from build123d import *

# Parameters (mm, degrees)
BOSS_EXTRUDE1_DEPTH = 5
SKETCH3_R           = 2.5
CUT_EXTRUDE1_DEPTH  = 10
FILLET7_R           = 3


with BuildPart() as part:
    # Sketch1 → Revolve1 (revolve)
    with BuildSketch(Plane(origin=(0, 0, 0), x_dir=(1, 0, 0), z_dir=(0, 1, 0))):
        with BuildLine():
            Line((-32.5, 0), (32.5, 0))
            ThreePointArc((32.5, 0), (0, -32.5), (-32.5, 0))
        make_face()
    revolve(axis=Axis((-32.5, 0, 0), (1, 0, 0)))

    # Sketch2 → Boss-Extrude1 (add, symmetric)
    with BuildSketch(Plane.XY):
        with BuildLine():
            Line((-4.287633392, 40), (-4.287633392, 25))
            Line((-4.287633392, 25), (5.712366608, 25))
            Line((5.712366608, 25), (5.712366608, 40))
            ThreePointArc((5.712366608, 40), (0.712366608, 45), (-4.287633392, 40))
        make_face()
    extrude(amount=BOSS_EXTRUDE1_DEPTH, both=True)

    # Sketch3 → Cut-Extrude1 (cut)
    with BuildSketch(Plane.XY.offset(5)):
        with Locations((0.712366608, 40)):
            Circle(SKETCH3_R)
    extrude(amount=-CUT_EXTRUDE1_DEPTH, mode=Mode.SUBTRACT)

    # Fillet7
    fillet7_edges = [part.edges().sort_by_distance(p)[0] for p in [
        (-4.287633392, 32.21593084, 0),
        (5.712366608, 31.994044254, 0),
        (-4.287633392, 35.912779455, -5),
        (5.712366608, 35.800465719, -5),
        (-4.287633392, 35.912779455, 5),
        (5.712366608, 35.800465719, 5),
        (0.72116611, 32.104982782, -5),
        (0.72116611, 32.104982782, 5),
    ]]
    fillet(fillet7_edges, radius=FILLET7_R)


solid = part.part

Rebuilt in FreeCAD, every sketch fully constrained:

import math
import FreeCAD as App
import Part
import Sketcher
Q = App.Units.Quantity


def edges_at(feature, points):
    """Names of the edges that pass closest to the given points."""
    edges = feature.Shape.Edges
    near = lambda p: min(range(len(edges)), key=lambda i: edges[i].distToShape(Part.Vertex(*p))[0])
    return sorted({f"Edge{near(p) + 1}" for p in points})

doc = App.newDocument("Part")
params = doc.addObject("Spreadsheet::Sheet", "Params")
for row, (alias, value) in enumerate([
    ("sketch1_radius", "32.5 mm"),
    ("revolution_angle", "360 deg"),
    ("sketch2_radius", "5 mm"),
    ("sketch2_height", "15 mm"),
    ("pad1_length", "10 mm"),
    ("sketch3_diameter", "5 mm"),
    ("pocket1_length", "10 mm"),
    ("fillet_radius", "3 mm"),
], start=1):
    params.set(f"A{row}", alias)
    params.set(f"B{row}", "=" + value)
    params.setAlias(f"B{row}", alias)

body = doc.addObject("PartDesign::Body", "Body")

# Sketch on XZ plane
sketch1 = doc.addObject("Sketcher::SketchObject", "Sketch")
body.addObject(sketch1)
sketch1.AttachmentSupport = (doc.XZ_Plane, [""])
sketch1.MapMode = "FlatFace"
sketch1.addGeometry([
    Part.LineSegment(App.Vector(32, 0, 0), App.Vector(-32, 0, 0)),
    Part.ArcOfCircle(Part.Circle(App.Vector(0, 0, 0), App.Vector(0, 0, 1), 32), math.radians(0), math.radians(180)),
], False)
sketch1.addConstraint([
    Sketcher.Constraint("Coincident", 0, 1, 1, 1),
    Sketcher.Constraint("Coincident", 1, 2, 0, 2),
    Sketcher.Constraint("Horizontal", 0),
    Sketcher.Constraint("Coincident", 1, 3, -1, 1),
    Sketcher.Constraint("PointOnObject", 0, 1, -1),
    Sketcher.Constraint("Radius", 1, Q("32.5 mm")),
])
sketch1.setExpression("Constraints[5]", "Params.sketch1_radius")
revolution = doc.addObject("PartDesign::Revolution", "Revolution")
body.addObject(revolution)
revolution.Profile = sketch1
revolution.ReferenceAxis = (sketch1, ["H_Axis"])
revolution.setExpression("Angle", "Params.revolution_angle")

# Sketch on XY plane
sketch2 = doc.addObject("Sketcher::SketchObject", "Sketch001")
body.addObject(sketch2)
sketch2.AttachmentSupport = (doc.XY_Plane, [""])
sketch2.MapMode = "FlatFace"
sketch2.addGeometry([
    Part.LineSegment(App.Vector(-4, 40, 0), App.Vector(-4, 25, 0)),
    Part.LineSegment(App.Vector(-4, 25, 0), App.Vector(6, 25, 0)),
    Part.LineSegment(App.Vector(6, 25, 0), App.Vector(6, 40, 0)),
    Part.ArcOfCircle(Part.Circle(App.Vector(1, 40, 0), App.Vector(0, 0, 1), 5), math.radians(0), math.radians(180)),
], False)
sketch2.addConstraint([
    Sketcher.Constraint("Coincident", 0, 2, 1, 1),
    Sketcher.Constraint("Coincident", 1, 2, 2, 1),
    Sketcher.Constraint("Tangent", 2, 2, 3, 1),
    Sketcher.Constraint("Tangent", 3, 2, 0, 1),
    Sketcher.Constraint("Vertical", 0),
    Sketcher.Constraint("Horizontal", 1),
    Sketcher.Constraint("Vertical", 2),
    Sketcher.Constraint("Radius", 3, Q("5 mm")),
    Sketcher.Constraint("DistanceY", 0, 2, 0, 1, Q("15 mm")),
    Sketcher.Constraint("DistanceY", -1, 1, 3, 3, Q("40 mm")),
    Sketcher.Constraint("DistanceX", -1, 1, 3, 3, Q("0.712367 mm")),
])
sketch2.setExpression("Constraints[7]", "Params.sketch2_radius")
sketch2.setExpression("Constraints[8]", "Params.sketch2_height")
pad1 = doc.addObject("PartDesign::Pad", "Pad")
body.addObject(pad1)
pad1.Profile = sketch2
pad1.setExpression("Length", "Params.pad1_length")
pad1.Midplane = True

# Sketch on XY plane
sketch3 = doc.addObject("Sketcher::SketchObject", "Sketch002")
body.addObject(sketch3)
sketch3.AttachmentSupport = (doc.XY_Plane, [""])
sketch3.MapMode = "FlatFace"
sketch3.AttachmentOffset = App.Placement(App.Vector(0, 0, 5), App.Rotation())
sketch3.addGeometry(Part.Circle(App.Vector(0.7, 40, 0), App.Vector(0, 0, 1), 2.5), False)
sketch3.addConstraint([
    Sketcher.Constraint("Diameter", 0, Q("5 mm")),
    Sketcher.Constraint("DistanceY", -1, 1, 0, 3, Q("40 mm")),
    Sketcher.Constraint("DistanceX", -1, 1, 0, 3, Q("0.712367 mm")),
])
sketch3.setExpression("Constraints[0]", "Params.sketch3_diameter")
pocket1 = doc.addObject("PartDesign::Pocket", "Pocket")
body.addObject(pocket1)
pocket1.Profile = sketch3
pocket1.setExpression("Length", "Params.pocket1_length")
doc.recompute()

fillet = doc.addObject("PartDesign::Fillet", "Fillet")
body.addObject(fillet)
fillet.Base = (pocket1, edges_at(pocket1, [
    (-4.288, 32.216, 0),
    (5.712, 31.994, 0),
    (-4.288, 35.913, -5),
    (5.712, 35.8, -5),
    (-4.288, 35.913, 5),
    (5.712, 35.8, 5),
    (0.721, 32.105, -5),
    (0.721, 32.105, 5),
]))
fillet.setExpression("Radius", "Params.fillet_radius")

doc.recompute()
